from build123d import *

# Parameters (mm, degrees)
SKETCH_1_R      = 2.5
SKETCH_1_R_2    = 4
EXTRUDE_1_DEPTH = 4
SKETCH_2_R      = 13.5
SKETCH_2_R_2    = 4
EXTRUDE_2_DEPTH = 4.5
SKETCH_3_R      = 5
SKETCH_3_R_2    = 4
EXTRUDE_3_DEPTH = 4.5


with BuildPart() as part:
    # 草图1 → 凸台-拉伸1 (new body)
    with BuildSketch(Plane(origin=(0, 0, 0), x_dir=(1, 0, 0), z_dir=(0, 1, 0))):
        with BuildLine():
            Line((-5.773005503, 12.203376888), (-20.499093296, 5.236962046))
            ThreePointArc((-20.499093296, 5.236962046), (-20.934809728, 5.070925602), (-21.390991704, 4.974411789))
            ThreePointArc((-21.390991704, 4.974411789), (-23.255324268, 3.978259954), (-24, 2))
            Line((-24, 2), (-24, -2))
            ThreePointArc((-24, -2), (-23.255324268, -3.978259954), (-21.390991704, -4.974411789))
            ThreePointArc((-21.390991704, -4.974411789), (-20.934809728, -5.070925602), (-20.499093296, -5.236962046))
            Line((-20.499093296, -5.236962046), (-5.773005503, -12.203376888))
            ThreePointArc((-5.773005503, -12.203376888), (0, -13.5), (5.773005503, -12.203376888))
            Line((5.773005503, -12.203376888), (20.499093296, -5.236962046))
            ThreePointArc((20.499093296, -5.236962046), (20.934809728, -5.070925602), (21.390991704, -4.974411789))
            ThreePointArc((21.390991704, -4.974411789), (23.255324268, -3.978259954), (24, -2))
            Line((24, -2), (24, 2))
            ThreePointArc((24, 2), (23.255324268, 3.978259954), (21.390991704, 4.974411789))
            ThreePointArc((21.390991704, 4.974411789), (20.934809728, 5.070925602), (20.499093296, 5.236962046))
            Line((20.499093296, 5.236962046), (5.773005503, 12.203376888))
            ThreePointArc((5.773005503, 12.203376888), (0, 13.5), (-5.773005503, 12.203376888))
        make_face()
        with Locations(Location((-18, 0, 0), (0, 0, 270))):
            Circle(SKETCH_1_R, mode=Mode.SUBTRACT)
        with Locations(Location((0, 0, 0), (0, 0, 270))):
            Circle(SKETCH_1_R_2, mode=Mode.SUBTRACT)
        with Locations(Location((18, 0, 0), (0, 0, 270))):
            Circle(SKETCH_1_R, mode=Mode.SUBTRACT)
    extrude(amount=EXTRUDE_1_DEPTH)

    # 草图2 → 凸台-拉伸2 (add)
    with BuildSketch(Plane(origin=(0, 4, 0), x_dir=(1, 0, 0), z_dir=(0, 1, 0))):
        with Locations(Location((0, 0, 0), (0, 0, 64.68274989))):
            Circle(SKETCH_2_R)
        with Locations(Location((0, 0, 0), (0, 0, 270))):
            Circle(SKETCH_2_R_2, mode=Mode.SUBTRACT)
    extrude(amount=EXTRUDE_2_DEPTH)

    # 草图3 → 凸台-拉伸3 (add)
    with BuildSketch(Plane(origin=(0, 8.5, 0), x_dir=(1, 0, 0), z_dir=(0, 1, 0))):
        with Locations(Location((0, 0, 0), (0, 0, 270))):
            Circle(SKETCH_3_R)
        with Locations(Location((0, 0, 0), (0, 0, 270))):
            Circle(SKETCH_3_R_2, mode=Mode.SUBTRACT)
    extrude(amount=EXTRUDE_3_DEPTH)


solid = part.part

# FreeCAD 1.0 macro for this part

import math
import FreeCAD as App
import Part
import Sketcher
from FreeCAD import Vector
Q = App.Units.Quantity

doc = App.newDocument("Part")
body = doc.addObject("PartDesign::Body", "Body")

sketch1 = doc.addObject("Sketcher::SketchObject", "Sketch")
body.addObject(sketch1)
sketch1.AttachmentSupport = (doc.XZ_Plane, [""])
sketch1.MapMode = "FlatFace"
sketch1.addGeometry([
    Part.LineSegment(Vector(-5.8, -12.2, 0), Vector(-20.5, -5.2, 0)),
    Part.ArcOfCircle(Part.Circle(Vector(-21.8, -7.9, 0), Vector(0, 0, 1), 3), math.radians(64.68), math.radians(82.51)),
    Part.ArcOfCircle(Part.Circle(Vector(-21, -2, 0), Vector(0, 0, 1), 3), math.radians(-180), math.radians(-97)),
    Part.LineSegment(Vector(-24, -2, 0), Vector(-24, 2, 0)),
    Part.ArcOfCircle(Part.Circle(Vector(-21, 2, 0), Vector(0, 0, 1), 3), math.radians(97), math.radians(180)),
    Part.ArcOfCircle(Part.Circle(Vector(-21.8, 7.9, 0), Vector(0, 0, 1), 3), math.radians(-82.51), math.radians(-64.68)),
    Part.LineSegment(Vector(-20.5, 5.2, 0), Vector(-5.8, 12.2, 0)),
    Part.ArcOfCircle(Part.Circle(Vector(0, 0, 0), Vector(0, 0, 1), 13.5), math.radians(65), math.radians(115)),
    Part.LineSegment(Vector(5.8, 12.2, 0), Vector(20.5, 5.2, 0)),
    Part.ArcOfCircle(Part.Circle(Vector(21.8, 7.9, 0), Vector(0, 0, 1), 3), math.radians(-115.32), math.radians(-97.49)),
    Part.ArcOfCircle(Part.Circle(Vector(21, 2, 0), Vector(0, 0, 1), 3), math.radians(0), math.radians(83)),
    Part.LineSegment(Vector(24, 2, 0), Vector(24, -2, 0)),
    Part.ArcOfCircle(Part.Circle(Vector(21, -2, 0), Vector(0, 0, 1), 3), math.radians(-83), math.radians(0)),
    Part.ArcOfCircle(Part.Circle(Vector(21.8, -7.9, 0), Vector(0, 0, 1), 3), math.radians(97.49), math.radians(115.32)),
    Part.LineSegment(Vector(20.5, -5.2, 0), Vector(5.8, -12.2, 0)),
    Part.ArcOfCircle(Part.Circle(Vector(0, 0, 0), Vector(0, 0, 1), 13.5), math.radians(-115), math.radians(-65)),
    Part.Circle(Vector(-18, 0, 0), Vector(0, 0, 1), 2.5),
    Part.Circle(Vector(0, 0, 0), Vector(0, 0, 1), 4),
    Part.Circle(Vector(18, 0, 0), Vector(0, 0, 1), 2.5),
], False)
sketch1.addConstraint([
    Sketcher.Constraint("Tangent", 0, 2, 1, 1),
    Sketcher.Constraint("Tangent", 1, 2, 2, 2),
    Sketcher.Constraint("Tangent", 2, 1, 3, 1),
    Sketcher.Constraint("Tangent", 3, 2, 4, 2),
    Sketcher.Constraint("Tangent", 4, 1, 5, 1),
    Sketcher.Constraint("Tangent", 5, 2, 6, 1),
    Sketcher.Constraint("Tangent", 6, 2, 7, 2),
    Sketcher.Constraint("Tangent", 7, 1, 8, 1),
    Sketcher.Constraint("Tangent", 8, 2, 9, 1),
    Sketcher.Constraint("Tangent", 9, 2, 10, 2),
    Sketcher.Constraint("Tangent", 10, 1, 11, 1),
    Sketcher.Constraint("Tangent", 11, 2, 12, 2),
    Sketcher.Constraint("Tangent", 12, 1, 13, 1),
    Sketcher.Constraint("Tangent", 13, 2, 14, 1),
    Sketcher.Constraint("Tangent", 14, 2, 15, 2),
    Sketcher.Constraint("Tangent", 15, 1, 0, 1),
    Sketcher.Constraint("Vertical", 3),
    Sketcher.Constraint("Vertical", 11),
    Sketcher.Constraint("Coincident", 7, 3, -1, 1),
    Sketcher.Constraint("Coincident", 15, 3, -1, 1),
    Sketcher.Constraint("Coincident", 17, 3, -1, 1),
    Sketcher.Constraint("Equal", 1, 2),
    Sketcher.Constraint("Equal", 2, 4),
    Sketcher.Constraint("Equal", 4, 5),
    Sketcher.Constraint("Equal", 5, 9),
    Sketcher.Constraint("Equal", 9, 10),
    Sketcher.Constraint("Equal", 10, 12),
    Sketcher.Constraint("Equal", 12, 13),
    Sketcher.Constraint("Equal", 7, 15),
    Sketcher.Constraint("Equal", 16, 18),
    Sketcher.Constraint("Symmetric", 1, 3, 9, 3, -1, 1),
    Sketcher.Constraint("Symmetric", 4, 3, 12, 3, -1, 1),
    Sketcher.Constraint("Symmetric", 16, 3, 18, 3, -1, 1),
    Sketcher.Constraint("Symmetric", 5, 3, 9, 3, -2),
    Sketcher.Constraint("PointOnObject", 16, 3, -1),
    Sketcher.Constraint("Parallel", 6, 14),
    Sketcher.Constraint("Diameter", 16, Q("5 mm")),
    Sketcher.Constraint("Diameter", 17, Q("8 mm")),
    Sketcher.Constraint("Radius", 1, Q("3 mm")),
    Sketcher.Constraint("Radius", 7, Q("13.5 mm")),
    Sketcher.Constraint("DistanceY", 3, 1, 3, 2, Q("4 mm")),
    Sketcher.Constraint("DistanceX", 2, 3, -1, 1, Q("21 mm")),
    Sketcher.Constraint("DistanceX", 16, 3, -1, 1, Q("18 mm")),
    Sketcher.Constraint("DistanceX", 1, 2, 0, 2, Q("0.891898 mm")),
])
pad1 = doc.addObject("PartDesign::Pad", "Pad")
body.addObject(pad1)
pad1.Profile = sketch1
pad1.Length = 4
pad1.Reversed = True

sketch2 = doc.addObject("Sketcher::SketchObject", "Sketch001")
body.addObject(sketch2)
sketch2.AttachmentSupport = (doc.XZ_Plane, [""])
sketch2.MapMode = "FlatFace"
sketch2.AttachmentOffset = App.Placement(Vector(0, 0, -4), App.Rotation())
sketch2.addGeometry([
    Part.Circle(Vector(0, 0, 0), Vector(0, 0, 1), 13.5),
    Part.Circle(Vector(0, 0, 0), Vector(0, 0, 1), 4),
], False)
sketch2.addConstraint([
    Sketcher.Constraint("Coincident", 0, 3, -1, 1),
    Sketcher.Constraint("Coincident", 1, 3, -1, 1),
    Sketcher.Constraint("Diameter", 0, Q("27 mm")),
    Sketcher.Constraint("Diameter", 1, Q("8 mm")),
])
pad2 = doc.addObject("PartDesign::Pad", "Pad001")
body.addObject(pad2)
pad2.Profile = sketch2
pad2.Length = 4.5
pad2.Reversed = True

sketch3 = doc.addObject("Sketcher::SketchObject", "Sketch002")
body.addObject(sketch3)
sketch3.AttachmentSupport = (doc.XZ_Plane, [""])
sketch3.MapMode = "FlatFace"
sketch3.AttachmentOffset = App.Placement(Vector(0, 0, -8.5), App.Rotation())
sketch3.addGeometry([
    Part.Circle(Vector(0, 0, 0), Vector(0, 0, 1), 5),
    Part.Circle(Vector(0, 0, 0), Vector(0, 0, 1), 4),
], False)
sketch3.addConstraint([
    Sketcher.Constraint("Coincident", 0, 3, -1, 1),
    Sketcher.Constraint("Coincident", 1, 3, -1, 1),
    Sketcher.Constraint("Diameter", 0, Q("10 mm")),
    Sketcher.Constraint("Diameter", 1, Q("8 mm")),
])
pad3 = doc.addObject("PartDesign::Pad", "Pad002")
body.addObject(pad3)
pad3.Profile = sketch3
pad3.Length = 4.5
pad3.Reversed = True

doc.recompute()
